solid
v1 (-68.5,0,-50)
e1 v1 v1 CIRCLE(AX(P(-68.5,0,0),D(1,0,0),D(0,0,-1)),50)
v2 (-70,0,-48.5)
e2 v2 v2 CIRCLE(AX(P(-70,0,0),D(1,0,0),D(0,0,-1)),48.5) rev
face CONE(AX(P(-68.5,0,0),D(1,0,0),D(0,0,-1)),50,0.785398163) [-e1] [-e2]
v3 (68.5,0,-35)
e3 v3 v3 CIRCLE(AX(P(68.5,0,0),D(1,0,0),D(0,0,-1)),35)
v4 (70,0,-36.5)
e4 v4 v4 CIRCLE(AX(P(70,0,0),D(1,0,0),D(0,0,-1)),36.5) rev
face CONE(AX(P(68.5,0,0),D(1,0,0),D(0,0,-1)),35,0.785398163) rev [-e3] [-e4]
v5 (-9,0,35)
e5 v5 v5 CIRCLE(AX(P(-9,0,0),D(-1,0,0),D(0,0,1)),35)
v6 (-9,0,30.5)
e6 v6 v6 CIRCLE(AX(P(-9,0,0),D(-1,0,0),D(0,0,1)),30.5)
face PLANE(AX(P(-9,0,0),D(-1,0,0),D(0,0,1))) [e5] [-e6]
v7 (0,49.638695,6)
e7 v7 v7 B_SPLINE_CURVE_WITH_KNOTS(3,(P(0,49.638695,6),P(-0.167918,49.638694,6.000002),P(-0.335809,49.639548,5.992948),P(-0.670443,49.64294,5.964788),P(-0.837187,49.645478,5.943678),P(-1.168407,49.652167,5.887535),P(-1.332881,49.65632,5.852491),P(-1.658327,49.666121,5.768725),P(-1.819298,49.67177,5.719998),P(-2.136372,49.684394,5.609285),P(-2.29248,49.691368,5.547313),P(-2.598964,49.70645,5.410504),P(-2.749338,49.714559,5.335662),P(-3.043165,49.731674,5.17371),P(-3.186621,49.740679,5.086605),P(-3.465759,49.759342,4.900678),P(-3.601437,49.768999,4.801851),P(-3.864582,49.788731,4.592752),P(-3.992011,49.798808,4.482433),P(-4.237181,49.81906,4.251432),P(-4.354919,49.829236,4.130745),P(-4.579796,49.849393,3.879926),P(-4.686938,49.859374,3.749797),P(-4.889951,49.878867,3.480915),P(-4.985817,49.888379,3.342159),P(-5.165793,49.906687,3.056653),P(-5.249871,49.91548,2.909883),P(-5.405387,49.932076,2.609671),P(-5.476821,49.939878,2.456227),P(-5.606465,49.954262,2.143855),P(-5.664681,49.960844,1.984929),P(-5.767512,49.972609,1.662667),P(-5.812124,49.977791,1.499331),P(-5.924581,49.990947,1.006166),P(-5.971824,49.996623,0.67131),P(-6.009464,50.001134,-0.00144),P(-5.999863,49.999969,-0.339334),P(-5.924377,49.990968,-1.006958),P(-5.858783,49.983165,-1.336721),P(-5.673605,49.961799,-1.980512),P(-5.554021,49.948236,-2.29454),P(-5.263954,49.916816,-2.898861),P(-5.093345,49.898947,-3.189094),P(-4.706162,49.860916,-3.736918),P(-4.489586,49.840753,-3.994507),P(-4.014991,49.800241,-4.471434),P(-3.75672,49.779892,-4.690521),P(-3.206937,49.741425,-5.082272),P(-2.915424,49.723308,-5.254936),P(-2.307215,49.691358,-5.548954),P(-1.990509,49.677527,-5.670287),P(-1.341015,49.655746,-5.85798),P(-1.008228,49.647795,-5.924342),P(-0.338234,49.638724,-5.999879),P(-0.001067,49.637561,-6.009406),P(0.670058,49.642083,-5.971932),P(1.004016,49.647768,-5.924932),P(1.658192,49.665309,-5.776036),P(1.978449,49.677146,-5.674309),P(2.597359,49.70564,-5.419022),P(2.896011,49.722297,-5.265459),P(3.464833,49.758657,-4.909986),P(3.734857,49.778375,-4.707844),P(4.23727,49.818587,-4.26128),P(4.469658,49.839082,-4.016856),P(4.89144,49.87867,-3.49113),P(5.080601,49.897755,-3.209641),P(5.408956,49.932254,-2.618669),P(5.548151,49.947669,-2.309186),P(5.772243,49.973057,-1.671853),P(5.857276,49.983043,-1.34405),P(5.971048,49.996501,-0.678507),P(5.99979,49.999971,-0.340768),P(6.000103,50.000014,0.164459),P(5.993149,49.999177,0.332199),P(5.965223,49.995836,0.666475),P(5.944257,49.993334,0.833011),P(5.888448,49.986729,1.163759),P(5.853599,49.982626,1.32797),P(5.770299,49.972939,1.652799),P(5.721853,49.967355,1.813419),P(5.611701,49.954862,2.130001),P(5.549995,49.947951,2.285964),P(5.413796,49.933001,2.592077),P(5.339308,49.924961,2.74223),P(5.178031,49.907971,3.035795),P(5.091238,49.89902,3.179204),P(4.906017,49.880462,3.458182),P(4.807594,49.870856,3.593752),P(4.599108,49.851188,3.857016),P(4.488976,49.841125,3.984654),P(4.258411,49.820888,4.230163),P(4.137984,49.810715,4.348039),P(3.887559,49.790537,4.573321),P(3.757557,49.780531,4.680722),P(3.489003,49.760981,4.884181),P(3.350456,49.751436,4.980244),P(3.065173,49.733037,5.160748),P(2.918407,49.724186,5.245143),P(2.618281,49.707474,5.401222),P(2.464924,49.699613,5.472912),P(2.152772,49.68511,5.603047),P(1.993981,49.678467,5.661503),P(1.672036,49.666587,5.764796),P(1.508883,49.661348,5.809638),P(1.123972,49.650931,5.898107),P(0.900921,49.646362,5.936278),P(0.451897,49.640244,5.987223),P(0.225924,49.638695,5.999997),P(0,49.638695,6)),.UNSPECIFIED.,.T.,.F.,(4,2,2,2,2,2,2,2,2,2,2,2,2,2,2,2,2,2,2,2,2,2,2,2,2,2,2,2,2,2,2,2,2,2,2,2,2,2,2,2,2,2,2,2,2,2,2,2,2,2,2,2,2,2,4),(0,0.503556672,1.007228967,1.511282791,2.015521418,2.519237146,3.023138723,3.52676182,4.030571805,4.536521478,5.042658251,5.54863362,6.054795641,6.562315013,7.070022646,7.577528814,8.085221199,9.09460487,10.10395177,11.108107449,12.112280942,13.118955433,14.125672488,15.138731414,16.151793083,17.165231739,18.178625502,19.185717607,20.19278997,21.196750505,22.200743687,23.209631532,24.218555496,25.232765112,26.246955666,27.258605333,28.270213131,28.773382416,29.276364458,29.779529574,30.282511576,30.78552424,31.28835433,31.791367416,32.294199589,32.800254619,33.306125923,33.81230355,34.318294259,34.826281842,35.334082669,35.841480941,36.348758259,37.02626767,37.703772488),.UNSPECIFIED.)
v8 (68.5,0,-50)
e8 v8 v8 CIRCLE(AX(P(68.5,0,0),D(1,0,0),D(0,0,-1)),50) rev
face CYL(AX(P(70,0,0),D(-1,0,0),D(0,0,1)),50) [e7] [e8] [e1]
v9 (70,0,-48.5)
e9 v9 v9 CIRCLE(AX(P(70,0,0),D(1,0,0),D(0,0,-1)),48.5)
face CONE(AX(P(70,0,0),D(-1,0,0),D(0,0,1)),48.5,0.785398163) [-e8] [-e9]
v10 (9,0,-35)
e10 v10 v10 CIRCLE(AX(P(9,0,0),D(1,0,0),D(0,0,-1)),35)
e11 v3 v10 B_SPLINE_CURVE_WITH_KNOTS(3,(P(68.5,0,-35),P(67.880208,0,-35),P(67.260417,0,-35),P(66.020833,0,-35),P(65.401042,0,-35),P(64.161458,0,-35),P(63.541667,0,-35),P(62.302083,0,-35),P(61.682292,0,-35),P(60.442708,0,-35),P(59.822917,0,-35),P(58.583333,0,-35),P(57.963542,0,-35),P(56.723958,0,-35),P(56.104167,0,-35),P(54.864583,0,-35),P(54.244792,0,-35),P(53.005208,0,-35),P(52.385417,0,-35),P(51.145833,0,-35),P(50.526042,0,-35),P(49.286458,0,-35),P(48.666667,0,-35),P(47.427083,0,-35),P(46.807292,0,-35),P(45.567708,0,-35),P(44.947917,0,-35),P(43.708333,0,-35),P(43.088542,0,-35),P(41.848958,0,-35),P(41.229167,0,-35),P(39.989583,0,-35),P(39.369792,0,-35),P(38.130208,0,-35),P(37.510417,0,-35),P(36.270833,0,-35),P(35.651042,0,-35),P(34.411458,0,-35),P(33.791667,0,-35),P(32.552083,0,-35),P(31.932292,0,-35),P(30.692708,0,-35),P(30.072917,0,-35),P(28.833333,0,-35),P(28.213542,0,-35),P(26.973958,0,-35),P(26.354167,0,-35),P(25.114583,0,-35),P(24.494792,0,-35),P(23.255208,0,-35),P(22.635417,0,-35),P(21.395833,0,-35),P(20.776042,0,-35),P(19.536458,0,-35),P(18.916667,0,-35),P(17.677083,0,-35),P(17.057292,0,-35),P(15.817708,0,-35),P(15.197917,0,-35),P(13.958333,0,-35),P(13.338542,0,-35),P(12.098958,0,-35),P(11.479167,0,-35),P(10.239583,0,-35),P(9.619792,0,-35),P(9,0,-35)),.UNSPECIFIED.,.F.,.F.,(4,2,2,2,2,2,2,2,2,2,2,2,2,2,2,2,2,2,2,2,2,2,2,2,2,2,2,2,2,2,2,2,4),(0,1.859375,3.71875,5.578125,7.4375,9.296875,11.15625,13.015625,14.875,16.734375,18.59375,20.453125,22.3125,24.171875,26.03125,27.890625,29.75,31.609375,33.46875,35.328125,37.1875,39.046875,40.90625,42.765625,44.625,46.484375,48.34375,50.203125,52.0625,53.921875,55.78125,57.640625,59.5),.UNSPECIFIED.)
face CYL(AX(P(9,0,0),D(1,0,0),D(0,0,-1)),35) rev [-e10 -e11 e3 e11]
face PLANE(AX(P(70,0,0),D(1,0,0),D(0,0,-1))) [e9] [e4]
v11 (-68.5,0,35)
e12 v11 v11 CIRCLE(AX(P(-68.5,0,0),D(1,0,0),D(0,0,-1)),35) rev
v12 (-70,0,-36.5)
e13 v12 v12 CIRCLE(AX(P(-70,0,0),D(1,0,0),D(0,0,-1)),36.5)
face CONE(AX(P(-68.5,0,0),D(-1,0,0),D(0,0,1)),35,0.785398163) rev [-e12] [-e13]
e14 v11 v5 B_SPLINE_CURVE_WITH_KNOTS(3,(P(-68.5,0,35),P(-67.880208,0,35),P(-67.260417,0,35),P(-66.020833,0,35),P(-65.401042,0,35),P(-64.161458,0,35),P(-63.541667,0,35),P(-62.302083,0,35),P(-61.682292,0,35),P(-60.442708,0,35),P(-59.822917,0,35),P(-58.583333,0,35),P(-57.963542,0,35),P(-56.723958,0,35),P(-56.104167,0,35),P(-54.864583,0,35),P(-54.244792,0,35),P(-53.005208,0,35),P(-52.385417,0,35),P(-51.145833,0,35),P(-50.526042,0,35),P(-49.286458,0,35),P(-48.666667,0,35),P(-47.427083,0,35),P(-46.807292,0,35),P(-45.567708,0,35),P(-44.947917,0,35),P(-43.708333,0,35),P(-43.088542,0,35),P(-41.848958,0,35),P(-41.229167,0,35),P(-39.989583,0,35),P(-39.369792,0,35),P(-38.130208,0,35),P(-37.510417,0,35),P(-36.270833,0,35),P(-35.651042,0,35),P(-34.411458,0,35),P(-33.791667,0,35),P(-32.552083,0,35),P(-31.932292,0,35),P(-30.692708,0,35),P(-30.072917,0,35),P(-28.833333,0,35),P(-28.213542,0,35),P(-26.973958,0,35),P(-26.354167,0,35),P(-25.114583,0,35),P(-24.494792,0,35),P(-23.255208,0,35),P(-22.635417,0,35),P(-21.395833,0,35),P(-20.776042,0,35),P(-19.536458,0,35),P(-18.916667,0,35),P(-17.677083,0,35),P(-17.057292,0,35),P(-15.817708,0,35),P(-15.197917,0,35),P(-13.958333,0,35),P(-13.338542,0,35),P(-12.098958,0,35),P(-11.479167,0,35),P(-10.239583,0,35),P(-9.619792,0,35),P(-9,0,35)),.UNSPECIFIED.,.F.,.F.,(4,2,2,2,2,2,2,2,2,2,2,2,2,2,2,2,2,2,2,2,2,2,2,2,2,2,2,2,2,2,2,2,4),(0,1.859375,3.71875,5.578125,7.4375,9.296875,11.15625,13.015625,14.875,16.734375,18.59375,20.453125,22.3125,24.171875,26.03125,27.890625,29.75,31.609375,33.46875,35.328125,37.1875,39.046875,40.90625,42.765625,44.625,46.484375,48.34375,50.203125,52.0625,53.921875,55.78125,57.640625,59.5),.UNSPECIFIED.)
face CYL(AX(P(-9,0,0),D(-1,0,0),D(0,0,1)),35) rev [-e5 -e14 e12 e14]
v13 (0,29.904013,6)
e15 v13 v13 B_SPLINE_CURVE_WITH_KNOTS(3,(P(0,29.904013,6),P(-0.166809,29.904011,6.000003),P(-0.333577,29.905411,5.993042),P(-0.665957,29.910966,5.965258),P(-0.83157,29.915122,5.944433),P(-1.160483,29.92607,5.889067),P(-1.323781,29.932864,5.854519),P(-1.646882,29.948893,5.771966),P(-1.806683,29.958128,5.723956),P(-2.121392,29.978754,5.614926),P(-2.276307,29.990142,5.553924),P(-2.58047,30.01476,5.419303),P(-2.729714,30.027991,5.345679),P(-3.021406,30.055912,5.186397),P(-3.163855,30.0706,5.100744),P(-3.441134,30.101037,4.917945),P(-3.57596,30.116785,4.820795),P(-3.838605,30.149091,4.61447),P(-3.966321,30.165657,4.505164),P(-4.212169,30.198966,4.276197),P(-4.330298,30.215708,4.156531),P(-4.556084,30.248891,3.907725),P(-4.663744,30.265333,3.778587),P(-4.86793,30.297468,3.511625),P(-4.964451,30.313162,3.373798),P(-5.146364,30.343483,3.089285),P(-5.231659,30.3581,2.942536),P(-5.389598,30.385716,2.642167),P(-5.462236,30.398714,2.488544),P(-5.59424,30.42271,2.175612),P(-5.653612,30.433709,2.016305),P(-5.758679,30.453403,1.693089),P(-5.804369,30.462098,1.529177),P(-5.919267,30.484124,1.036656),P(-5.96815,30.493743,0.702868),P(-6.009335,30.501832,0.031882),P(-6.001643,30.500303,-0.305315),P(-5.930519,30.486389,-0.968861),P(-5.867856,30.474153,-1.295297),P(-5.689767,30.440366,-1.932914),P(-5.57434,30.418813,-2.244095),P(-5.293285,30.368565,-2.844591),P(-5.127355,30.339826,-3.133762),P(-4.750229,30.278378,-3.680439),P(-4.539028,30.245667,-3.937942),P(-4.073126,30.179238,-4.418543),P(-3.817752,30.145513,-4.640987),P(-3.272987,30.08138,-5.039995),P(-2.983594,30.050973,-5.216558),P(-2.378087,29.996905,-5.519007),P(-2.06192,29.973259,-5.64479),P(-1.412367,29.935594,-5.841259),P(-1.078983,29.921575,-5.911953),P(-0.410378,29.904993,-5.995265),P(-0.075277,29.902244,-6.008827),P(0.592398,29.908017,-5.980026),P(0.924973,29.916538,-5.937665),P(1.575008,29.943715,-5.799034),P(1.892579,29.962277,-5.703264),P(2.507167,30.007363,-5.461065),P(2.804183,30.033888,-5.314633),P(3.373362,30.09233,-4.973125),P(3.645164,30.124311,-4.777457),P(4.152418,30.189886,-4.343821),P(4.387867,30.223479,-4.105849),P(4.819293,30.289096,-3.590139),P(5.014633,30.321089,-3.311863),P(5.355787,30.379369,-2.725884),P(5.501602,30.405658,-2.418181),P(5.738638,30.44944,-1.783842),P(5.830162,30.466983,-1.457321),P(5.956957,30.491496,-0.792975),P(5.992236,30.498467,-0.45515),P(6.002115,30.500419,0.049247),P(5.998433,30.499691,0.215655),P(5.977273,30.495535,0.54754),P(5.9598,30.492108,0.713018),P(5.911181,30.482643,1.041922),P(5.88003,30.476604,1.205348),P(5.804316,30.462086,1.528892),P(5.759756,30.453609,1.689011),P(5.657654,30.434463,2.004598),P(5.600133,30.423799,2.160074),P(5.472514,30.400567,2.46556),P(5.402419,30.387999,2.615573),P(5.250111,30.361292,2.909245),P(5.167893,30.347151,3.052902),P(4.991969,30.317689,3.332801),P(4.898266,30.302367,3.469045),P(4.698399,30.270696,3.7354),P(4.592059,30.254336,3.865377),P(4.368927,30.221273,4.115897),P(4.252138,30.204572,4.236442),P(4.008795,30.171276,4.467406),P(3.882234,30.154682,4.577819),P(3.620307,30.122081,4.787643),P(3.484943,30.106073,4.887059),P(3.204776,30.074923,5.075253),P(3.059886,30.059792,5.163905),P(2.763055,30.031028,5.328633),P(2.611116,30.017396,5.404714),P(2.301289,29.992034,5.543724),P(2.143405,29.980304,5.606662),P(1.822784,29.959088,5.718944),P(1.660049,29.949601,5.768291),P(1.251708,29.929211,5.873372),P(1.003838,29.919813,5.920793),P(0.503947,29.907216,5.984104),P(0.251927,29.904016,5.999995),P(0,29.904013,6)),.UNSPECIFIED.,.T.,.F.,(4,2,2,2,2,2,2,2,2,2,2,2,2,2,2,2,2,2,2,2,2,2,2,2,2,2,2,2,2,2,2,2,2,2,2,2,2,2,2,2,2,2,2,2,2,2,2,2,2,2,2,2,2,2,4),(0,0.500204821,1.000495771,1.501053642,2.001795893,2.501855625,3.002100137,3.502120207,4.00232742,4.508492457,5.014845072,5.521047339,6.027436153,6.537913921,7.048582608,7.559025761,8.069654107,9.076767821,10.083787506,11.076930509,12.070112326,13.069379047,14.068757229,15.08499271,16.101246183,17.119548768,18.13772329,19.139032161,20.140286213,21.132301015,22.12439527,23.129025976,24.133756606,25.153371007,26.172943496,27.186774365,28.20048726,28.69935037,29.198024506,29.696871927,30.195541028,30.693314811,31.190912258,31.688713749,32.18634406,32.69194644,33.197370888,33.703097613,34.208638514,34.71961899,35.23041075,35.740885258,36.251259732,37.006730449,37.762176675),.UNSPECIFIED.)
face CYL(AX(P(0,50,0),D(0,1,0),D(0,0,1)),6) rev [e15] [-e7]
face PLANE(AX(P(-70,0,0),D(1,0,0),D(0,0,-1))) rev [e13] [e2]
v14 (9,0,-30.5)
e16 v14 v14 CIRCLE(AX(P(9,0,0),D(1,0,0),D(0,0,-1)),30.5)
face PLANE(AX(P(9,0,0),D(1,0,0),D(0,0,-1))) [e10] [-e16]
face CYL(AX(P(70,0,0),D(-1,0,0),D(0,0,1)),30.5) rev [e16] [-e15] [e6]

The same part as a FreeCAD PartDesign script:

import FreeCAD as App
import Part
import Sketcher


def edges_at(feature, points):
    """Names of the edges that pass closest to the given points."""
    edges = feature.Shape.Edges
    near = lambda p: min(range(len(edges)), key=lambda i: edges[i].distToShape(Part.Vertex(*p))[0])
    return sorted({f"Edge{near(p) + 1}" for p in points})

doc = App.newDocument("Part")
params = doc.addObject("Spreadsheet::Sheet", "Params")
for row, (alias, value) in enumerate([
    ("sketch1_diameter", "100 mm"),
    ("sketch1_diameter2", "61 mm"),
    ("pad1_length", "140 mm"),
    ("sketch2_diameter", "70 mm"),
    ("pocket1_length", "61 mm"),
    ("sketch3_diameter", "70 mm"),
    ("pocket2_length", "61 mm"),
    ("chamfer_size", "1.5 mm"),
    ("sketch4_diameter", "12 mm"),
    ("hole_diameter", "12 mm"),
    ("hole_depth", "38 mm"),
], start=1):
    params.set(f"A{row}", alias)
    params.set(f"B{row}", "=" + value)
    params.setAlias(f"B{row}", alias)

body = doc.addObject("PartDesign::Body", "Body")

# Sketch on YZ plane
sketch1 = body.newObject("Sketcher::SketchObject", "Sketch")
sketch1.AttachmentSupport = (doc.getObject("YZ_Plane"), [""])
sketch1.MapMode = "FlatFace"
sketch1.addGeometry([
    Part.Circle(App.Vector(0, 0, 0), App.Vector(0, 0, 1), 50),
    Part.Circle(App.Vector(0, 0, 0), App.Vector(0, 0, 1), 30),
], False)
sketch1.addConstraint([
    Sketcher.Constraint("Coincident", 0, 3, -1, 1),
    Sketcher.Constraint("Coincident", 1, 3, -1, 1),
    Sketcher.Constraint("Diameter", 0, 100.0),
    Sketcher.Constraint("Diameter", 1, 61.0),
])
sketch1.setExpression("Constraints[2]", "Params.sketch1_diameter")
sketch1.setExpression("Constraints[3]", "Params.sketch1_diameter2")
pad1 = body.newObject("PartDesign::Pad", "Pad")
pad1.Profile = sketch1
pad1.setExpression("Length", "Params.pad1_length")
pad1.Midplane = True

# Sketch on YZ plane
sketch2 = body.newObject("Sketcher::SketchObject", "Sketch001")
sketch2.AttachmentSupport = (doc.getObject("YZ_Plane"), [""])
sketch2.MapMode = "FlatFace"
sketch2.AttachmentOffset = App.Placement(App.Vector(0, 0, -70), App.Rotation())
sketch2.addGeometry(Part.Circle(App.Vector(0, 0, 0), App.Vector(0, 0, 1), 35), False)
sketch2.addConstraint([
    Sketcher.Constraint("Coincident", 0, 3, -1, 1),
    Sketcher.Constraint("Diameter", 0, 70.0),
])
sketch2.setExpression("Constraints[1]", "Params.sketch2_diameter")
pocket1 = body.newObject("PartDesign::Pocket", "Pocket")
pocket1.Profile = sketch2
pocket1.setExpression("Length", "Params.pocket1_length")
pocket1.Reversed = True

# Sketch on YZ plane
sketch3 = body.newObject("Sketcher::SketchObject", "Sketch002")
sketch3.AttachmentSupport = (doc.getObject("YZ_Plane"), [""])
sketch3.MapMode = "FlatFace"
sketch3.AttachmentOffset = App.Placement(App.Vector(0, 0, 9), App.Rotation())
sketch3.addGeometry(Part.Circle(App.Vector(0, 0, 0), App.Vector(0, 0, 1), 35), False)
sketch3.addConstraint([
    Sketcher.Constraint("Coincident", 0, 3, -1, 1),
    Sketcher.Constraint("Diameter", 0, 70.0),
])
sketch3.setExpression("Constraints[1]", "Params.sketch3_diameter")
pocket2 = body.newObject("PartDesign::Pocket", "Pocket001")
pocket2.Profile = sketch3
pocket2.setExpression("Length", "Params.pocket2_length")
pocket2.Reversed = True
doc.recompute()

chamfer = body.newObject("PartDesign::Chamfer", "Chamfer")
chamfer.Base = (pocket2, edges_at(pocket2, [
    (-70, 0, -35),
    (70, 0, -35),
    (-70, 0, 50),
    (70, 0, 50),
]))
chamfer.setExpression("Size", "Params.chamfer_size")

# Sketch on XZ plane
sketch4 = body.newObject("Sketcher::SketchObject", "Sketch003")
sketch4.AttachmentSupport = (doc.getObject("XZ_Plane"), [""])
sketch4.MapMode = "FlatFace"
sketch4.AttachmentOffset = App.Placement(App.Vector(0, 0, -50), App.Rotation())
sketch4.addGeometry(Part.Circle(App.Vector(0, 0, 0), App.Vector(0, 0, 1), 6), False)
sketch4.addConstraint([
    Sketcher.Constraint("Coincident", 0, 3, -1, 1),
    Sketcher.Constraint("Diameter", 0, 12.0),
])
sketch4.setExpression("Constraints[1]", "Params.sketch4_diameter")
doc.recompute()
hole = body.newObject("PartDesign::Hole", "Hole")
hole.Profile = sketch4
hole.ThreadType = "None"
hole.setExpression("Diameter", "Params.hole_diameter")
hole.DepthType = "Dimension"
hole.setExpression("Depth", "Params.hole_depth")
hole.DrillPoint = "Angled"
hole.DrillPointAngle = 118
hole.Reversed = True

doc.recompute()
